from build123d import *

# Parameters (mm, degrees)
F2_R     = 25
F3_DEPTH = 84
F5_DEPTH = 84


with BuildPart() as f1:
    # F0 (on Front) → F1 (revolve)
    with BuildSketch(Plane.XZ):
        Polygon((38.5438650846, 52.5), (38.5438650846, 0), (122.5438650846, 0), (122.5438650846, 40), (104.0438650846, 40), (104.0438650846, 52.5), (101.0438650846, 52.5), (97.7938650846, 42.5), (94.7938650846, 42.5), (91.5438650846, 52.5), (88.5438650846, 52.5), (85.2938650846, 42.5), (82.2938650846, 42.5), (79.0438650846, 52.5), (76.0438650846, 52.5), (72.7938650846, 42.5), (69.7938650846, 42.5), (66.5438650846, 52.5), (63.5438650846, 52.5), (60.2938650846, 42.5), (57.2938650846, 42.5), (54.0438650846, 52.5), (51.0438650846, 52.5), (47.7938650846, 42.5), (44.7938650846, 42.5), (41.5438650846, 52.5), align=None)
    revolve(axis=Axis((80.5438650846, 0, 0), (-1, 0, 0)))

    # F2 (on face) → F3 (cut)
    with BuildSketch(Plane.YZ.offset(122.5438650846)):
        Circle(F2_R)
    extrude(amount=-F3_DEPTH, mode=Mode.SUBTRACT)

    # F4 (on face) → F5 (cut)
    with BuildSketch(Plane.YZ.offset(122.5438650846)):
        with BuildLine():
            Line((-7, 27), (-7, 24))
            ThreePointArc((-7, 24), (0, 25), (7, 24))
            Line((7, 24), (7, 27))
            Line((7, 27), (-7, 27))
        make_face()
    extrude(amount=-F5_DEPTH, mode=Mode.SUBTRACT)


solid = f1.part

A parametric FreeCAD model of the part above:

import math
import FreeCAD as App
import Part
import Sketcher
from FreeCAD import Vector
Q = App.Units.Quantity

doc = App.newDocument("Part")
body = doc.addObject("PartDesign::Body", "Body")

sketch1 = body.newObject("Sketcher::SketchObject", "Sketch")
sketch1.AttachmentSupport = (doc.getObject("XZ_Plane"), [""])
sketch1.MapMode = "FlatFace"
sketch1.addGeometry([
    Part.LineSegment(Vector(38.5, 52.5, 0), Vector(38.5, 0, 0)),
    Part.LineSegment(Vector(38.5, 0, 0), Vector(122.5, 0, 0)),
    Part.LineSegment(Vector(122.5, 0, 0), Vector(122.5, 40, 0)),
    Part.LineSegment(Vector(122.5, 40, 0), Vector(104, 40, 0)),
    Part.LineSegment(Vector(104, 40, 0), Vector(104, 52.5, 0)),
    Part.LineSegment(Vector(104, 52.5, 0), Vector(101, 52.5, 0)),
    Part.LineSegment(Vector(101, 52.5, 0), Vector(97.8, 42.5, 0)),
    Part.LineSegment(Vector(97.8, 42.5, 0), Vector(94.8, 42.5, 0)),
    Part.LineSegment(Vector(94.8, 42.5, 0), Vector(91.5, 52.5, 0)),
    Part.LineSegment(Vector(91.5, 52.5, 0), Vector(88.5, 52.5, 0)),
    Part.LineSegment(Vector(88.5, 52.5, 0), Vector(85.3, 42.5, 0)),
    Part.LineSegment(Vector(85.3, 42.5, 0), Vector(82.3, 42.5, 0)),
    Part.LineSegment(Vector(82.3, 42.5, 0), Vector(79, 52.5, 0)),
    Part.LineSegment(Vector(79, 52.5, 0), Vector(76, 52.5, 0)),
    Part.LineSegment(Vector(76, 52.5, 0), Vector(72.8, 42.5, 0)),
    Part.LineSegment(Vector(72.8, 42.5, 0), Vector(69.8, 42.5, 0)),
    Part.LineSegment(Vector(69.8, 42.5, 0), Vector(66.5, 52.5, 0)),
    Part.LineSegment(Vector(66.5, 52.5, 0), Vector(63.5, 52.5, 0)),
    Part.LineSegment(Vector(63.5, 52.5, 0), Vector(60.3, 42.5, 0)),
    Part.LineSegment(Vector(60.3, 42.5, 0), Vector(57.3, 42.5, 0)),
    Part.LineSegment(Vector(57.3, 42.5, 0), Vector(54, 52.5, 0)),
    Part.LineSegment(Vector(54, 52.5, 0), Vector(51, 52.5, 0)),
    Part.LineSegment(Vector(51, 52.5, 0), Vector(47.8, 42.5, 0)),
    Part.LineSegment(Vector(47.8, 42.5, 0), Vector(44.8, 42.5, 0)),
    Part.LineSegment(Vector(44.8, 42.5, 0), Vector(41.5, 52.5, 0)),
    Part.LineSegment(Vector(41.5, 52.5, 0), Vector(38.5, 52.5, 0)),
], False)
sketch1.addConstraint([
    Sketcher.Constraint("Coincident", 0, 2, 1, 1),
    Sketcher.Constraint("Coincident", 1, 2, 2, 1),
    Sketcher.Constraint("Coincident", 2, 2, 3, 1),
    Sketcher.Constraint("Coincident", 3, 2, 4, 1),
    Sketcher.Constraint("Coincident", 4, 2, 5, 1),
    Sketcher.Constraint("Coincident", 5, 2, 6, 1),
    Sketcher.Constraint("Coincident", 6, 2, 7, 1),
    Sketcher.Constraint("Coincident", 7, 2, 8, 1),
    Sketcher.Constraint("Coincident", 8, 2, 9, 1),
    Sketcher.Constraint("Coincident", 9, 2, 10, 1),
    Sketcher.Constraint("Coincident", 10, 2, 11, 1),
    Sketcher.Constraint("Coincident", 11, 2, 12, 1),
    Sketcher.Constraint("Coincident", 12, 2, 13, 1),
    Sketcher.Constraint("Coincident", 13, 2, 14, 1),
    Sketcher.Constraint("Coincident", 14, 2, 15, 1),
    Sketcher.Constraint("Coincident", 15, 2, 16, 1),
    Sketcher.Constraint("Coincident", 16, 2, 17, 1),
    Sketcher.Constraint("Coincident", 17, 2, 18, 1),
    Sketcher.Constraint("Coincident", 18, 2, 19, 1),
    Sketcher.Constraint("Coincident", 19, 2, 20, 1),
    Sketcher.Constraint("Coincident", 20, 2, 21, 1),
    Sketcher.Constraint("Coincident", 21, 2, 22, 1),
    Sketcher.Constraint("Coincident", 22, 2, 23, 1),
    Sketcher.Constraint("Coincident", 23, 2, 24, 1),
    Sketcher.Constraint("Coincident", 24, 2, 25, 1),
    Sketcher.Constraint("Coincident", 25, 2, 0, 1),
    Sketcher.Constraint("Vertical", 0),
    Sketcher.Constraint("Horizontal", 1),
    Sketcher.Constraint("Vertical", 2),
    Sketcher.Constraint("Horizontal", 3),
    Sketcher.Constraint("Vertical", 4),
    Sketcher.Constraint("Horizontal", 5),
    Sketcher.Constraint("Horizontal", 7),
    Sketcher.Constraint("Horizontal", 9),
    Sketcher.Constraint("Horizontal", 11),
    Sketcher.Constraint("Horizontal", 13),
    Sketcher.Constraint("Horizontal", 15),
    Sketcher.Constraint("Horizontal", 17),
    Sketcher.Constraint("Horizontal", 19),
    Sketcher.Constraint("Horizontal", 21),
    Sketcher.Constraint("Horizontal", 23),
    Sketcher.Constraint("Horizontal", 25),
    Sketcher.Constraint("PointOnObject", 0, 2, -1),
    Sketcher.Constraint("Parallel", 6, 10),
    Sketcher.Constraint("Parallel", 8, 12),
    Sketcher.Constraint("Parallel", 10, 14),
    Sketcher.Constraint("Parallel", 12, 16),
    Sketcher.Constraint("Parallel", 14, 18),
    Sketcher.Constraint("Parallel", 16, 20),
    Sketcher.Constraint("Parallel", 18, 22),
    Sketcher.Constraint("Parallel", 20, 24),
    Sketcher.Constraint("Horizontal", 5, 2, 8, 2),
    Sketcher.Constraint("Horizontal", 7, 2, 10, 2),
    Sketcher.Constraint("Horizontal", 9, 2, 12, 2),
    Sketcher.Constraint("Horizontal", 11, 2, 14, 2),
    Sketcher.Constraint("Horizontal", 13, 2, 16, 2),
    Sketcher.Constraint("Horizontal", 15, 2, 18, 2),
    Sketcher.Constraint("Horizontal", 17, 2, 20, 2),
    Sketcher.Constraint("Horizontal", 19, 2, 22, 2),
    Sketcher.Constraint("Horizontal", 21, 2, 24, 2),
    Sketcher.Constraint("Equal", 5, 7),
    Sketcher.Constraint("Equal", 7, 9),
    Sketcher.Constraint("Equal", 9, 11),
    Sketcher.Constraint("Equal", 11, 13),
    Sketcher.Constraint("Equal", 13, 15),
    Sketcher.Constraint("Equal", 15, 17),
    Sketcher.Constraint("Equal", 17, 19),
    Sketcher.Constraint("Equal", 19, 21),
    Sketcher.Constraint("Equal", 21, 23),
    Sketcher.Constraint("Equal", 23, 25),
    Sketcher.Constraint("Equal", 6, 8),
    Sketcher.Constraint("DistanceX", 1, 1, 1, 2, Q("84 mm")),
    Sketcher.Constraint("DistanceX", 5, 2, 5, 1, Q("3 mm")),
    Sketcher.Constraint("DistanceY", 2, 1, 2, 2, Q("40 mm")),
    Sketcher.Constraint("DistanceX", 3, 2, 3, 1, Q("18.5 mm")),
    Sketcher.Constraint("DistanceY", 0, 2, 0, 1, Q("52.5 mm")),
    Sketcher.Constraint("DistanceY", 6, 2, 5, 2, Q("10 mm")),
    Sketcher.Constraint("DistanceX", -1, 1, 0, 2, Q("38.543865 mm")),
])
revolution = body.newObject("PartDesign::Revolution", "Revolution")
revolution.Profile = sketch1
revolution.ReferenceAxis = (sketch1, ["H_Axis"])
revolution.Angle = 360

sketch2 = body.newObject("Sketcher::SketchObject", "Sketch001")
sketch2.AttachmentSupport = (doc.getObject("YZ_Plane"), [""])
sketch2.MapMode = "FlatFace"
sketch2.AttachmentOffset = App.Placement(Vector(0, 0, 122.543865), App.Rotation())
sketch2.addGeometry(Part.Circle(Vector(0, 0, 0), Vector(0, 0, 1), 25), False)
sketch2.addConstraint([
    Sketcher.Constraint("Coincident", 0, 3, -1, 1),
    Sketcher.Constraint("Diameter", 0, Q("50 mm")),
])
pocket1 = body.newObject("PartDesign::Pocket", "Pocket")
pocket1.Profile = sketch2
pocket1.Length = 84

sketch3 = body.newObject("Sketcher::SketchObject", "Sketch002")
sketch3.AttachmentSupport = (doc.getObject("YZ_Plane"), [""])
sketch3.MapMode = "FlatFace"
sketch3.AttachmentOffset = App.Placement(Vector(0, 0, 122.543865), App.Rotation())
sketch3.addGeometry([
    Part.LineSegment(Vector(-7, 27, 0), Vector(-7, 24, 0)),
    Part.ArcOfCircle(Part.Circle(Vector(0, 0, 0), Vector(0, 0, 1), 25), math.radians(74), math.radians(106)),
    Part.LineSegment(Vector(7, 24, 0), Vector(7, 27, 0)),
    Part.LineSegment(Vector(7, 27, 0), Vector(-7, 27, 0)),
], False)
sketch3.addConstraint([
    Sketcher.Constraint("Coincident", 0, 2, 1, 2),
    Sketcher.Constraint("Coincident", 1, 1, 2, 1),
    Sketcher.Constraint("Coincident", 2, 2, 3, 1),
    Sketcher.Constraint("Coincident", 3, 2, 0, 1),
    Sketcher.Constraint("Vertical", 0),
    Sketcher.Constraint("Vertical", 2),
    Sketcher.Constraint("Horizontal", 3),
    Sketcher.Constraint("Coincident", 1, 3, -1, 1),
    Sketcher.Constraint("Horizontal", 0, 2, 1, 1),
    Sketcher.Constraint("Radius", 1, Q("25 mm")),
    Sketcher.Constraint("DistanceX", 3, 2, 3, 1, Q("14 mm")),
    Sketcher.Constraint("DistanceY", 0, 2, 0, 1, Q("3 mm")),
])
pocket2 = body.newObject("PartDesign::Pocket", "Pocket001")
pocket2.Profile = sketch3
pocket2.Length = 84

doc.recompute()
